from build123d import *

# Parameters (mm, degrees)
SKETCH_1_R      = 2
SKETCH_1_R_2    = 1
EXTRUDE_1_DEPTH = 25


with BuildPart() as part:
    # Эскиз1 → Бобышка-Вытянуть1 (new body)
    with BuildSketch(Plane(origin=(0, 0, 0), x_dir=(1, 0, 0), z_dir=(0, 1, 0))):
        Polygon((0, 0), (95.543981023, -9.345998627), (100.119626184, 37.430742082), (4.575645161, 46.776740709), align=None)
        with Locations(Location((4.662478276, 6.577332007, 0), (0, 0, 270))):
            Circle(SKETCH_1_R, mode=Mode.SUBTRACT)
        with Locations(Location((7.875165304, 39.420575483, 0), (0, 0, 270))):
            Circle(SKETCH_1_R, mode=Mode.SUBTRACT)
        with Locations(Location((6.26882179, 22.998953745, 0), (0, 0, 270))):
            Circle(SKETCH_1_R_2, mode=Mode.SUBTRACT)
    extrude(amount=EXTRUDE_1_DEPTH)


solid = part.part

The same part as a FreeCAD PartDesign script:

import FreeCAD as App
import Part
import Sketcher
from FreeCAD import Vector
Q = App.Units.Quantity

doc = App.newDocument("Part")
body = doc.addObject("PartDesign::Body", "Body")

# Sketch on XZ plane
sketch1 = doc.addObject("Sketcher::SketchObject", "Sketch")
body.addObject(sketch1)
sketch1.AttachmentSupport = (doc.XZ_Plane, [""])
sketch1.MapMode = "FlatFace"
sketch1.addGeometry([
    Part.LineSegment(Vector(0, 0, 0), Vector(95.543981, 9.345999, 0)),  # 0
    Part.LineSegment(Vector(95.543981, 9.345999, 0), Vector(100.119626, -37.430742, 0)),  # 1
    Part.LineSegment(Vector(100.119626, -37.430742, 0), Vector(4.575645, -46.776741, 0)),  # 2
    Part.LineSegment(Vector(4.575645, -46.776741, 0), Vector(0, 0, 0)),  # 3
    Part.Circle(Vector(4.662478, -6.577332, 0), Vector(0, 0, 1), 2),  # 4
    Part.Circle(Vector(6.268822, -22.998954, 0), Vector(0, 0, 1), 1),  # 5
    Part.Circle(Vector(7.875165, -39.420575, 0), Vector(0, 0, 1), 2),  # 6
], False)
sketch1.addConstraint([
    Sketcher.Constraint("Coincident", 0, 2, 1, 1),
    Sketcher.Constraint("Coincident", 1, 2, 2, 1),
    Sketcher.Constraint("Coincident", 2, 2, 3, 1),
    Sketcher.Constraint("Coincident", 3, 2, 0, 1),
    Sketcher.Constraint("Coincident", 3, 2, -1, 1),
    Sketcher.Constraint("Equal", 4, 6),
    Sketcher.Constraint("Perpendicular", 0, 1),
    Sketcher.Constraint("Perpendicular", 1, 2),
    Sketcher.Constraint("Perpendicular", 2, 3),
    Sketcher.Constraint("Diameter", 4, Q("4 mm")),
    Sketcher.Constraint("Diameter", 5, Q("2 mm")),
    Sketcher.Constraint("Distance", 0, Q("96 mm")),
    Sketcher.Constraint("Distance", 1, Q("47 mm")),
    Sketcher.Constraint("DistanceY", -1, 1, 0, 2, Q("9.345999 mm")),
    Sketcher.Constraint("DistanceX", -1, 1, 4, 3, Q("4.662478 mm")),
    Sketcher.Constraint("DistanceX", -1, 1, 5, 3, Q("6.268822 mm")),
    Sketcher.Constraint("DistanceY", 5, 3, 4, 3, Q("16.421622 mm")),
    Sketcher.Constraint("DistanceY", 6, 3, 5, 3, Q("16.421622 mm")),
    Sketcher.Constraint("DistanceY", 4, 3, 0, 2, Q("15.923331 mm")),
    Sketcher.Constraint("DistanceX", 6, 3, 1, 2, Q("92.244461 mm")),
])
pad1 = doc.addObject("PartDesign::Pad", "Pad")
body.addObject(pad1)
pad1.Profile = sketch1
pad1.Length = 25
pad1.Reversed = True

doc.recompute()
